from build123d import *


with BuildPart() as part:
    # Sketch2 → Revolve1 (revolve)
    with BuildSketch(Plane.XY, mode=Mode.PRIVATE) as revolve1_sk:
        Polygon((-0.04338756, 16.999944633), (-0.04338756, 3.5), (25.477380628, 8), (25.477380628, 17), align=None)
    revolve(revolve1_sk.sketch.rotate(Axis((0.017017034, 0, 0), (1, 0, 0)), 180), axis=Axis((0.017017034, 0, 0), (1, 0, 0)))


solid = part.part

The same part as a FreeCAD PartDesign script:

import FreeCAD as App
import Part
import Sketcher

V = App.Vector
Q = App.Units.Quantity

doc = App.newDocument("Part")
params = doc.addObject("Spreadsheet::Sheet", "Params")
for row, (alias, value) in enumerate([
    ("sketch1_height", "9 mm"),
    ("revolution_angle", "360 deg"),
], start=1):
    params.set(f"A{row}", alias)
    params.set(f"B{row}", "=" + value)
    params.setAlias(f"B{row}", alias)

body = doc.addObject("PartDesign::Body", "Body")

sketch1 = doc.addObject("Sketcher::SketchObject", "Sketch")
body.addObject(sketch1)
sketch1.AttachmentSupport = (doc.XY_Plane, [""])
sketch1.MapMode = "FlatFace"
sketch1.addGeometry([
    Part.LineSegment(V(0, 17, 0), V(0, 4, 0)),
    Part.LineSegment(V(0, 4, 0), V(25, 8, 0)),
    Part.LineSegment(V(25, 8, 0), V(25, 17, 0)),
    Part.LineSegment(V(25, 17, 0), V(0, 17, 0)),
], False)
sketch1.addConstraint([
    Sketcher.Constraint("Coincident", 0, 2, 1, 1),
    Sketcher.Constraint("Coincident", 1, 2, 2, 1),
    Sketcher.Constraint("Coincident", 2, 2, 3, 1),
    Sketcher.Constraint("Coincident", 3, 2, 0, 1),
    Sketcher.Constraint("Vertical", 0),
    Sketcher.Constraint("Vertical", 2),
    Sketcher.Constraint("DistanceY", 2, 1, 2, 2, Q("9 mm")),
    Sketcher.Constraint("Angle", 1, Q("10 deg")),
    Sketcher.Constraint("DistanceY", -1, 1, 1, 2, Q("8 mm")),
    Sketcher.Constraint("DistanceY", -1, 1, 0, 2, Q("3.5 mm")),
    Sketcher.Constraint("DistanceY", 0, 2, 0, 1, Q("13.499945 mm")),
    Sketcher.Constraint("DistanceX", -1, 1, 1, 2, Q("25.477381 mm")),
])
sketch1.setExpression("Constraints[6]", "Params.sketch1_height")
revolution = doc.addObject("PartDesign::Revolution", "Revolution")
body.addObject(revolution)
revolution.Profile = sketch1
revolution.ReferenceAxis = (sketch1, ["H_Axis"])
revolution.setExpression("Angle", "Params.revolution_angle")

doc.recompute()
